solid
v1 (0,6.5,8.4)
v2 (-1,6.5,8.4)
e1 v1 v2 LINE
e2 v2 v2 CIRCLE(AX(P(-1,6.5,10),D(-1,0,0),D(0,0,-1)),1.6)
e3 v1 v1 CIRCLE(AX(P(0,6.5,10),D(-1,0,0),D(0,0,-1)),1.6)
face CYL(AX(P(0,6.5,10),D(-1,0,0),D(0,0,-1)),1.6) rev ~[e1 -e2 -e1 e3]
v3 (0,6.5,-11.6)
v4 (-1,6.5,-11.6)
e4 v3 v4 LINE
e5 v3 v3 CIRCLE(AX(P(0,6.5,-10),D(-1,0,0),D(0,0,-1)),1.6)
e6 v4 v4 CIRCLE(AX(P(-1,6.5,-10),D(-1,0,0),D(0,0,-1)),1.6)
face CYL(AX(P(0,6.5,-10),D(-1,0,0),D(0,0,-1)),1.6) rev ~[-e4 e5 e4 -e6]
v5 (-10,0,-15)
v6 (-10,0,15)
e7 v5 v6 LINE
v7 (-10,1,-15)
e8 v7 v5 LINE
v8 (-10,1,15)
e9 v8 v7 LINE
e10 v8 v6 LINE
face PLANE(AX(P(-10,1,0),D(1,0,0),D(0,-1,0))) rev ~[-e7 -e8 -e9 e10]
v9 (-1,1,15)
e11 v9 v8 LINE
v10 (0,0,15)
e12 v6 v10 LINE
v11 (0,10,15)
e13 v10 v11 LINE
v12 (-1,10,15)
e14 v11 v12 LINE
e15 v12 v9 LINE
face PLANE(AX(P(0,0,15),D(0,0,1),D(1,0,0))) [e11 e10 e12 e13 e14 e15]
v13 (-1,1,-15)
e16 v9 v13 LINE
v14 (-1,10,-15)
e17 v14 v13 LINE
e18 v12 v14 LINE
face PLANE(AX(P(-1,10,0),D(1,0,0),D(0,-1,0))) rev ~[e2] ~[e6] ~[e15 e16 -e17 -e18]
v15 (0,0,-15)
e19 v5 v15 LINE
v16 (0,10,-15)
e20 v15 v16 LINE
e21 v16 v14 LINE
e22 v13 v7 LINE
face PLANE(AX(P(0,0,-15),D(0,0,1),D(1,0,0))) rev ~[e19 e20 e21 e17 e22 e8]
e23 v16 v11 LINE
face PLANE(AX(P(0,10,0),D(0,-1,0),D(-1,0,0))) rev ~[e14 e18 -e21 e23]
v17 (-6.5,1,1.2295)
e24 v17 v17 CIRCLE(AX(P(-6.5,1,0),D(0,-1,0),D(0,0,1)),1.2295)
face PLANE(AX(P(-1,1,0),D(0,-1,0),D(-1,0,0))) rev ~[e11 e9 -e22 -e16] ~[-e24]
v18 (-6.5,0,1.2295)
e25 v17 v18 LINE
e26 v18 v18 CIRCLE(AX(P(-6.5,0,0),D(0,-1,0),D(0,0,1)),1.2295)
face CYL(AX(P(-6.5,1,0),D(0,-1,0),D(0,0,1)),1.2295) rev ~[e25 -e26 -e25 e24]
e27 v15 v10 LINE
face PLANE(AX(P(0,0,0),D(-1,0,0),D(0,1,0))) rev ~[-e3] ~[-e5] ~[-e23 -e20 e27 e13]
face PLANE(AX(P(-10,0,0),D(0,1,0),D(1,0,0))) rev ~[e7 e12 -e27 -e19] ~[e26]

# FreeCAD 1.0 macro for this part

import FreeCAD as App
import Part
import Sketcher

V = App.Vector
Q = App.Units.Quantity


def add_polygon(sketch, points):
    """Adds a closed chain of lines whose ends are joined by coincident constraints."""
    first, n = sketch.GeometryCount, len(points)
    for a, b in zip(points, points[1:] + points[:1]):
        sketch.addGeometry(Part.LineSegment(App.Vector(*a, 0), App.Vector(*b, 0)), False)
    for i in range(n):
        sketch.addConstraint(Sketcher.Constraint("Coincident", first + i, 2, first + (i + 1) % n, 1))

doc = App.newDocument("Part")
body = doc.addObject("PartDesign::Body", "Body")

# Sketch on XY plane
sketch1 = body.newObject("Sketcher::SketchObject", "Sketch")
sketch1.AttachmentSupport = (doc.getObject("XY_Plane"), [""])
sketch1.MapMode = "FlatFace"
add_polygon(sketch1, [(-10, 1), (-10, 0), (0, 0), (0, 10), (-1, 10), (-1, 1)])  # lines 0-5
sketch1.addConstraint([
    Sketcher.Constraint("Vertical", 0),
    Sketcher.Constraint("Horizontal", 1),
    Sketcher.Constraint("Vertical", 2),
    Sketcher.Constraint("Horizontal", 3),
    Sketcher.Constraint("Vertical", 4),
    Sketcher.Constraint("Horizontal", 5),
    Sketcher.Constraint("Coincident", 1, 2, -1, 1),
    Sketcher.Constraint("Equal", 3, 0),
    Sketcher.Constraint("Equal", 1, 2),
    Sketcher.Constraint("DistanceX", 1, 1, 1, 2, Q("10 mm")),
    Sketcher.Constraint("DistanceX", 3, 2, 3, 1, Q("1 mm")),
])
pad1 = body.newObject("PartDesign::Pad", "Pad")
pad1.Profile = sketch1
pad1.Length = 30
pad1.Midplane = True

# Sketch on YZ plane
sketch2 = body.newObject("Sketcher::SketchObject", "Sketch001")
sketch2.AttachmentSupport = (doc.getObject("YZ_Plane"), [""])
sketch2.MapMode = "FlatFace"
sketch2.addGeometry([
    Part.Circle(V(6.5, 10, 0), V(0, 0, 1), 1.6),
    Part.Circle(V(6.5, -10, 0), V(0, 0, 1), 1.6),
], False)
sketch2.addConstraint([
    Sketcher.Constraint("Equal", 0, 1),
    Sketcher.Constraint("Symmetric", 0, 3, 1, 3, -1),
    Sketcher.Constraint("Diameter", 0, Q("3.2 mm")),
    Sketcher.Constraint("DistanceY", -1, 1, 0, 3, Q("10 mm")),
    Sketcher.Constraint("DistanceX", -1, 1, 0, 3, Q("6.5 mm")),
])
doc.recompute()
hole = body.newObject("PartDesign::Hole", "Hole")
hole.Profile = sketch2
hole.ThreadType = "None"
hole.Diameter = 3.2
hole.DepthType = "ThroughAll"

# Sketch on XZ plane
sketch3 = body.newObject("Sketcher::SketchObject", "Sketch002")
sketch3.AttachmentSupport = (doc.getObject("XZ_Plane"), [""])
sketch3.MapMode = "FlatFace"
sketch3.AttachmentOffset = App.Placement(V(0, 0, -1), App.Rotation())
sketch3.addGeometry(Part.Circle(V(-6.5, 0, 0), V(0, 0, 1), 1.2), False)
sketch3.addConstraint([
    Sketcher.Constraint("PointOnObject", 0, 3, -1),
    Sketcher.Constraint("Diameter", 0, Q("2.459 mm")),
    Sketcher.Constraint("DistanceX", 0, 3, -1, 1, Q("6.5 mm")),
])
doc.recompute()
hole2 = body.newObject("PartDesign::Hole", "Hole001")
hole2.Profile = sketch3
hole2.ThreadType = "None"
hole2.Diameter = 2.459
hole2.DepthType = "ThroughAll"
hole2.Reversed = True

doc.recompute()
